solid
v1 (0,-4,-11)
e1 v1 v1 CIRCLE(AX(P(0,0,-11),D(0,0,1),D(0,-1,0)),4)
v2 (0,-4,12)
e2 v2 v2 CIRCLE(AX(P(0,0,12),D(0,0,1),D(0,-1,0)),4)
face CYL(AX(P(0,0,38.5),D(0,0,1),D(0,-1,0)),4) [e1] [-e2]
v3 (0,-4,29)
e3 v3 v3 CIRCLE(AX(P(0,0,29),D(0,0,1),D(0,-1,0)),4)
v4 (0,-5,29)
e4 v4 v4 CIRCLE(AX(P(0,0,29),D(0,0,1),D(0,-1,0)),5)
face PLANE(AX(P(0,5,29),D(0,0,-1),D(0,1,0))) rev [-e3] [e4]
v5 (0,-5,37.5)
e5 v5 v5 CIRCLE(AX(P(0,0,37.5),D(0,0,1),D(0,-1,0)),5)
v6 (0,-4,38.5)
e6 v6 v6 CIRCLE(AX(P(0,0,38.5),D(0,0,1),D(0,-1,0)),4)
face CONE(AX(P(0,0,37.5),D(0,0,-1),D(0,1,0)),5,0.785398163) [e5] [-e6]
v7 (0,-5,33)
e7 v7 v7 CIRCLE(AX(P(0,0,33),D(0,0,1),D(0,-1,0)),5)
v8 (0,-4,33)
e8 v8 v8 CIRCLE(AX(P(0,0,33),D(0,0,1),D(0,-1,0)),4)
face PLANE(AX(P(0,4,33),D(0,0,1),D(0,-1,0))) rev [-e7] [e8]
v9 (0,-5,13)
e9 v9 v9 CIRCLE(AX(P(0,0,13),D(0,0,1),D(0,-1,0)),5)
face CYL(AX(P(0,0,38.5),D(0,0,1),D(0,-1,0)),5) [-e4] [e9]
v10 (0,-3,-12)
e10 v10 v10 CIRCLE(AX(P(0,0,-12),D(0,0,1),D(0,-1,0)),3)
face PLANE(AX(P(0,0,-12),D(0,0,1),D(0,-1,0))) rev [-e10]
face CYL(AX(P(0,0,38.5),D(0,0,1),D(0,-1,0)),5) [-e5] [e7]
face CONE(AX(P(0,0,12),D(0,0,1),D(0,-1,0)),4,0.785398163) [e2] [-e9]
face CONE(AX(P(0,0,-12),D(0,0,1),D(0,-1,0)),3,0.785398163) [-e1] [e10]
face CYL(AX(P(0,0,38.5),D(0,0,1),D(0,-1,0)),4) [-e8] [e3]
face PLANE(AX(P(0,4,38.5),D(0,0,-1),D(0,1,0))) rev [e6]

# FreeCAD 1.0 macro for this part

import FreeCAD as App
import Part
import Sketcher
from FreeCAD import Vector
Q = App.Units.Quantity


def add_polygon(sketch, points):
    """Adds a closed chain of lines whose ends are joined by coincident constraints."""
    first, n = sketch.GeometryCount, len(points)
    for a, b in zip(points, points[1:] + points[:1]):
        sketch.addGeometry(Part.LineSegment(App.Vector(*a, 0), App.Vector(*b, 0)), False)
    for i in range(n):
        sketch.addConstraint(Sketcher.Constraint("Coincident", first + i, 2, first + (i + 1) % n, 1))

doc = App.newDocument("Part")
body = doc.addObject("PartDesign::Body", "Body")

# Sketch on YZ plane
sketch1 = body.newObject("Sketcher::SketchObject", "Sketch")
sketch1.AttachmentSupport = (doc.getObject("YZ_Plane"), [""])
sketch1.MapMode = "FlatFace"
add_polygon(sketch1, [(4, -11), (4, 12), (5, 13), (5, 29), (4, 29), (4, 33), (5, 33), (5, 37.5), (4, 38.5), (0, 38.5), (0, -12), (3, -12)])  # lines 0-11
sketch1.addConstraint(Sketcher.Constraint("Vertical", 0))
sketch1.addConstraint(Sketcher.Constraint("Vertical", 2))
sketch1.addConstraint(Sketcher.Constraint("Horizontal", 3))
sketch1.addConstraint(Sketcher.Constraint("Vertical", 4))
sketch1.addConstraint(Sketcher.Constraint("Horizontal", 5))
sketch1.addConstraint(Sketcher.Constraint("Vertical", 6))
sketch1.addConstraint(Sketcher.Constraint("Horizontal", 8))
sketch1.addConstraint(Sketcher.Constraint("Vertical", 9))
sketch1.addConstraint(Sketcher.Constraint("Horizontal", 10))
sketch1.addConstraint(Sketcher.Constraint("PointOnObject", 8, 2, -2))
sketch1.addConstraint(Sketcher.Constraint("Perpendicular", 1, 7))
sketch1.addConstraint(Sketcher.Constraint("Perpendicular", 7, 11))
sketch1.addConstraint(Sketcher.Constraint("Vertical", 0, 2, 3, 2))
sketch1.addConstraint(Sketcher.Constraint("Vertical", 2, 2, 5, 2))
sketch1.addConstraint(Sketcher.Constraint("Vertical", 4, 2, 7, 2))
sketch1.addConstraint(Sketcher.Constraint("Equal", 8, 4))
sketch1.addConstraint(Sketcher.Constraint("Equal", 1, 7))
sketch1.addConstraint(Sketcher.Constraint("Equal", 7, 11))
sketch1.addConstraint(Sketcher.Constraint("DistanceX", 3, 2, 3, 1, Q("1 mm")))
sketch1.addConstraint(Sketcher.Constraint("DistanceX", 8, 2, 8, 1, Q("4 mm")))
sketch1.addConstraint(Sketcher.Constraint("DistanceY", 0, 1, 0, 2, Q("23 mm")))
sketch1.addConstraint(Sketcher.Constraint("DistanceY", 2, 1, 2, 2, Q("16 mm")))
sketch1.addConstraint(Sketcher.Constraint("DistanceY", 6, 1, 6, 2, Q("4.5 mm")))
sketch1.addConstraint(Sketcher.Constraint("DistanceY", -1, 1, 0, 2, Q("12 mm")))
revolution = body.newObject("PartDesign::Revolution", "Revolution")
revolution.Profile = sketch1
revolution.ReferenceAxis = (sketch1, ["V_Axis"])
revolution.Angle = 360

doc.recompute()
